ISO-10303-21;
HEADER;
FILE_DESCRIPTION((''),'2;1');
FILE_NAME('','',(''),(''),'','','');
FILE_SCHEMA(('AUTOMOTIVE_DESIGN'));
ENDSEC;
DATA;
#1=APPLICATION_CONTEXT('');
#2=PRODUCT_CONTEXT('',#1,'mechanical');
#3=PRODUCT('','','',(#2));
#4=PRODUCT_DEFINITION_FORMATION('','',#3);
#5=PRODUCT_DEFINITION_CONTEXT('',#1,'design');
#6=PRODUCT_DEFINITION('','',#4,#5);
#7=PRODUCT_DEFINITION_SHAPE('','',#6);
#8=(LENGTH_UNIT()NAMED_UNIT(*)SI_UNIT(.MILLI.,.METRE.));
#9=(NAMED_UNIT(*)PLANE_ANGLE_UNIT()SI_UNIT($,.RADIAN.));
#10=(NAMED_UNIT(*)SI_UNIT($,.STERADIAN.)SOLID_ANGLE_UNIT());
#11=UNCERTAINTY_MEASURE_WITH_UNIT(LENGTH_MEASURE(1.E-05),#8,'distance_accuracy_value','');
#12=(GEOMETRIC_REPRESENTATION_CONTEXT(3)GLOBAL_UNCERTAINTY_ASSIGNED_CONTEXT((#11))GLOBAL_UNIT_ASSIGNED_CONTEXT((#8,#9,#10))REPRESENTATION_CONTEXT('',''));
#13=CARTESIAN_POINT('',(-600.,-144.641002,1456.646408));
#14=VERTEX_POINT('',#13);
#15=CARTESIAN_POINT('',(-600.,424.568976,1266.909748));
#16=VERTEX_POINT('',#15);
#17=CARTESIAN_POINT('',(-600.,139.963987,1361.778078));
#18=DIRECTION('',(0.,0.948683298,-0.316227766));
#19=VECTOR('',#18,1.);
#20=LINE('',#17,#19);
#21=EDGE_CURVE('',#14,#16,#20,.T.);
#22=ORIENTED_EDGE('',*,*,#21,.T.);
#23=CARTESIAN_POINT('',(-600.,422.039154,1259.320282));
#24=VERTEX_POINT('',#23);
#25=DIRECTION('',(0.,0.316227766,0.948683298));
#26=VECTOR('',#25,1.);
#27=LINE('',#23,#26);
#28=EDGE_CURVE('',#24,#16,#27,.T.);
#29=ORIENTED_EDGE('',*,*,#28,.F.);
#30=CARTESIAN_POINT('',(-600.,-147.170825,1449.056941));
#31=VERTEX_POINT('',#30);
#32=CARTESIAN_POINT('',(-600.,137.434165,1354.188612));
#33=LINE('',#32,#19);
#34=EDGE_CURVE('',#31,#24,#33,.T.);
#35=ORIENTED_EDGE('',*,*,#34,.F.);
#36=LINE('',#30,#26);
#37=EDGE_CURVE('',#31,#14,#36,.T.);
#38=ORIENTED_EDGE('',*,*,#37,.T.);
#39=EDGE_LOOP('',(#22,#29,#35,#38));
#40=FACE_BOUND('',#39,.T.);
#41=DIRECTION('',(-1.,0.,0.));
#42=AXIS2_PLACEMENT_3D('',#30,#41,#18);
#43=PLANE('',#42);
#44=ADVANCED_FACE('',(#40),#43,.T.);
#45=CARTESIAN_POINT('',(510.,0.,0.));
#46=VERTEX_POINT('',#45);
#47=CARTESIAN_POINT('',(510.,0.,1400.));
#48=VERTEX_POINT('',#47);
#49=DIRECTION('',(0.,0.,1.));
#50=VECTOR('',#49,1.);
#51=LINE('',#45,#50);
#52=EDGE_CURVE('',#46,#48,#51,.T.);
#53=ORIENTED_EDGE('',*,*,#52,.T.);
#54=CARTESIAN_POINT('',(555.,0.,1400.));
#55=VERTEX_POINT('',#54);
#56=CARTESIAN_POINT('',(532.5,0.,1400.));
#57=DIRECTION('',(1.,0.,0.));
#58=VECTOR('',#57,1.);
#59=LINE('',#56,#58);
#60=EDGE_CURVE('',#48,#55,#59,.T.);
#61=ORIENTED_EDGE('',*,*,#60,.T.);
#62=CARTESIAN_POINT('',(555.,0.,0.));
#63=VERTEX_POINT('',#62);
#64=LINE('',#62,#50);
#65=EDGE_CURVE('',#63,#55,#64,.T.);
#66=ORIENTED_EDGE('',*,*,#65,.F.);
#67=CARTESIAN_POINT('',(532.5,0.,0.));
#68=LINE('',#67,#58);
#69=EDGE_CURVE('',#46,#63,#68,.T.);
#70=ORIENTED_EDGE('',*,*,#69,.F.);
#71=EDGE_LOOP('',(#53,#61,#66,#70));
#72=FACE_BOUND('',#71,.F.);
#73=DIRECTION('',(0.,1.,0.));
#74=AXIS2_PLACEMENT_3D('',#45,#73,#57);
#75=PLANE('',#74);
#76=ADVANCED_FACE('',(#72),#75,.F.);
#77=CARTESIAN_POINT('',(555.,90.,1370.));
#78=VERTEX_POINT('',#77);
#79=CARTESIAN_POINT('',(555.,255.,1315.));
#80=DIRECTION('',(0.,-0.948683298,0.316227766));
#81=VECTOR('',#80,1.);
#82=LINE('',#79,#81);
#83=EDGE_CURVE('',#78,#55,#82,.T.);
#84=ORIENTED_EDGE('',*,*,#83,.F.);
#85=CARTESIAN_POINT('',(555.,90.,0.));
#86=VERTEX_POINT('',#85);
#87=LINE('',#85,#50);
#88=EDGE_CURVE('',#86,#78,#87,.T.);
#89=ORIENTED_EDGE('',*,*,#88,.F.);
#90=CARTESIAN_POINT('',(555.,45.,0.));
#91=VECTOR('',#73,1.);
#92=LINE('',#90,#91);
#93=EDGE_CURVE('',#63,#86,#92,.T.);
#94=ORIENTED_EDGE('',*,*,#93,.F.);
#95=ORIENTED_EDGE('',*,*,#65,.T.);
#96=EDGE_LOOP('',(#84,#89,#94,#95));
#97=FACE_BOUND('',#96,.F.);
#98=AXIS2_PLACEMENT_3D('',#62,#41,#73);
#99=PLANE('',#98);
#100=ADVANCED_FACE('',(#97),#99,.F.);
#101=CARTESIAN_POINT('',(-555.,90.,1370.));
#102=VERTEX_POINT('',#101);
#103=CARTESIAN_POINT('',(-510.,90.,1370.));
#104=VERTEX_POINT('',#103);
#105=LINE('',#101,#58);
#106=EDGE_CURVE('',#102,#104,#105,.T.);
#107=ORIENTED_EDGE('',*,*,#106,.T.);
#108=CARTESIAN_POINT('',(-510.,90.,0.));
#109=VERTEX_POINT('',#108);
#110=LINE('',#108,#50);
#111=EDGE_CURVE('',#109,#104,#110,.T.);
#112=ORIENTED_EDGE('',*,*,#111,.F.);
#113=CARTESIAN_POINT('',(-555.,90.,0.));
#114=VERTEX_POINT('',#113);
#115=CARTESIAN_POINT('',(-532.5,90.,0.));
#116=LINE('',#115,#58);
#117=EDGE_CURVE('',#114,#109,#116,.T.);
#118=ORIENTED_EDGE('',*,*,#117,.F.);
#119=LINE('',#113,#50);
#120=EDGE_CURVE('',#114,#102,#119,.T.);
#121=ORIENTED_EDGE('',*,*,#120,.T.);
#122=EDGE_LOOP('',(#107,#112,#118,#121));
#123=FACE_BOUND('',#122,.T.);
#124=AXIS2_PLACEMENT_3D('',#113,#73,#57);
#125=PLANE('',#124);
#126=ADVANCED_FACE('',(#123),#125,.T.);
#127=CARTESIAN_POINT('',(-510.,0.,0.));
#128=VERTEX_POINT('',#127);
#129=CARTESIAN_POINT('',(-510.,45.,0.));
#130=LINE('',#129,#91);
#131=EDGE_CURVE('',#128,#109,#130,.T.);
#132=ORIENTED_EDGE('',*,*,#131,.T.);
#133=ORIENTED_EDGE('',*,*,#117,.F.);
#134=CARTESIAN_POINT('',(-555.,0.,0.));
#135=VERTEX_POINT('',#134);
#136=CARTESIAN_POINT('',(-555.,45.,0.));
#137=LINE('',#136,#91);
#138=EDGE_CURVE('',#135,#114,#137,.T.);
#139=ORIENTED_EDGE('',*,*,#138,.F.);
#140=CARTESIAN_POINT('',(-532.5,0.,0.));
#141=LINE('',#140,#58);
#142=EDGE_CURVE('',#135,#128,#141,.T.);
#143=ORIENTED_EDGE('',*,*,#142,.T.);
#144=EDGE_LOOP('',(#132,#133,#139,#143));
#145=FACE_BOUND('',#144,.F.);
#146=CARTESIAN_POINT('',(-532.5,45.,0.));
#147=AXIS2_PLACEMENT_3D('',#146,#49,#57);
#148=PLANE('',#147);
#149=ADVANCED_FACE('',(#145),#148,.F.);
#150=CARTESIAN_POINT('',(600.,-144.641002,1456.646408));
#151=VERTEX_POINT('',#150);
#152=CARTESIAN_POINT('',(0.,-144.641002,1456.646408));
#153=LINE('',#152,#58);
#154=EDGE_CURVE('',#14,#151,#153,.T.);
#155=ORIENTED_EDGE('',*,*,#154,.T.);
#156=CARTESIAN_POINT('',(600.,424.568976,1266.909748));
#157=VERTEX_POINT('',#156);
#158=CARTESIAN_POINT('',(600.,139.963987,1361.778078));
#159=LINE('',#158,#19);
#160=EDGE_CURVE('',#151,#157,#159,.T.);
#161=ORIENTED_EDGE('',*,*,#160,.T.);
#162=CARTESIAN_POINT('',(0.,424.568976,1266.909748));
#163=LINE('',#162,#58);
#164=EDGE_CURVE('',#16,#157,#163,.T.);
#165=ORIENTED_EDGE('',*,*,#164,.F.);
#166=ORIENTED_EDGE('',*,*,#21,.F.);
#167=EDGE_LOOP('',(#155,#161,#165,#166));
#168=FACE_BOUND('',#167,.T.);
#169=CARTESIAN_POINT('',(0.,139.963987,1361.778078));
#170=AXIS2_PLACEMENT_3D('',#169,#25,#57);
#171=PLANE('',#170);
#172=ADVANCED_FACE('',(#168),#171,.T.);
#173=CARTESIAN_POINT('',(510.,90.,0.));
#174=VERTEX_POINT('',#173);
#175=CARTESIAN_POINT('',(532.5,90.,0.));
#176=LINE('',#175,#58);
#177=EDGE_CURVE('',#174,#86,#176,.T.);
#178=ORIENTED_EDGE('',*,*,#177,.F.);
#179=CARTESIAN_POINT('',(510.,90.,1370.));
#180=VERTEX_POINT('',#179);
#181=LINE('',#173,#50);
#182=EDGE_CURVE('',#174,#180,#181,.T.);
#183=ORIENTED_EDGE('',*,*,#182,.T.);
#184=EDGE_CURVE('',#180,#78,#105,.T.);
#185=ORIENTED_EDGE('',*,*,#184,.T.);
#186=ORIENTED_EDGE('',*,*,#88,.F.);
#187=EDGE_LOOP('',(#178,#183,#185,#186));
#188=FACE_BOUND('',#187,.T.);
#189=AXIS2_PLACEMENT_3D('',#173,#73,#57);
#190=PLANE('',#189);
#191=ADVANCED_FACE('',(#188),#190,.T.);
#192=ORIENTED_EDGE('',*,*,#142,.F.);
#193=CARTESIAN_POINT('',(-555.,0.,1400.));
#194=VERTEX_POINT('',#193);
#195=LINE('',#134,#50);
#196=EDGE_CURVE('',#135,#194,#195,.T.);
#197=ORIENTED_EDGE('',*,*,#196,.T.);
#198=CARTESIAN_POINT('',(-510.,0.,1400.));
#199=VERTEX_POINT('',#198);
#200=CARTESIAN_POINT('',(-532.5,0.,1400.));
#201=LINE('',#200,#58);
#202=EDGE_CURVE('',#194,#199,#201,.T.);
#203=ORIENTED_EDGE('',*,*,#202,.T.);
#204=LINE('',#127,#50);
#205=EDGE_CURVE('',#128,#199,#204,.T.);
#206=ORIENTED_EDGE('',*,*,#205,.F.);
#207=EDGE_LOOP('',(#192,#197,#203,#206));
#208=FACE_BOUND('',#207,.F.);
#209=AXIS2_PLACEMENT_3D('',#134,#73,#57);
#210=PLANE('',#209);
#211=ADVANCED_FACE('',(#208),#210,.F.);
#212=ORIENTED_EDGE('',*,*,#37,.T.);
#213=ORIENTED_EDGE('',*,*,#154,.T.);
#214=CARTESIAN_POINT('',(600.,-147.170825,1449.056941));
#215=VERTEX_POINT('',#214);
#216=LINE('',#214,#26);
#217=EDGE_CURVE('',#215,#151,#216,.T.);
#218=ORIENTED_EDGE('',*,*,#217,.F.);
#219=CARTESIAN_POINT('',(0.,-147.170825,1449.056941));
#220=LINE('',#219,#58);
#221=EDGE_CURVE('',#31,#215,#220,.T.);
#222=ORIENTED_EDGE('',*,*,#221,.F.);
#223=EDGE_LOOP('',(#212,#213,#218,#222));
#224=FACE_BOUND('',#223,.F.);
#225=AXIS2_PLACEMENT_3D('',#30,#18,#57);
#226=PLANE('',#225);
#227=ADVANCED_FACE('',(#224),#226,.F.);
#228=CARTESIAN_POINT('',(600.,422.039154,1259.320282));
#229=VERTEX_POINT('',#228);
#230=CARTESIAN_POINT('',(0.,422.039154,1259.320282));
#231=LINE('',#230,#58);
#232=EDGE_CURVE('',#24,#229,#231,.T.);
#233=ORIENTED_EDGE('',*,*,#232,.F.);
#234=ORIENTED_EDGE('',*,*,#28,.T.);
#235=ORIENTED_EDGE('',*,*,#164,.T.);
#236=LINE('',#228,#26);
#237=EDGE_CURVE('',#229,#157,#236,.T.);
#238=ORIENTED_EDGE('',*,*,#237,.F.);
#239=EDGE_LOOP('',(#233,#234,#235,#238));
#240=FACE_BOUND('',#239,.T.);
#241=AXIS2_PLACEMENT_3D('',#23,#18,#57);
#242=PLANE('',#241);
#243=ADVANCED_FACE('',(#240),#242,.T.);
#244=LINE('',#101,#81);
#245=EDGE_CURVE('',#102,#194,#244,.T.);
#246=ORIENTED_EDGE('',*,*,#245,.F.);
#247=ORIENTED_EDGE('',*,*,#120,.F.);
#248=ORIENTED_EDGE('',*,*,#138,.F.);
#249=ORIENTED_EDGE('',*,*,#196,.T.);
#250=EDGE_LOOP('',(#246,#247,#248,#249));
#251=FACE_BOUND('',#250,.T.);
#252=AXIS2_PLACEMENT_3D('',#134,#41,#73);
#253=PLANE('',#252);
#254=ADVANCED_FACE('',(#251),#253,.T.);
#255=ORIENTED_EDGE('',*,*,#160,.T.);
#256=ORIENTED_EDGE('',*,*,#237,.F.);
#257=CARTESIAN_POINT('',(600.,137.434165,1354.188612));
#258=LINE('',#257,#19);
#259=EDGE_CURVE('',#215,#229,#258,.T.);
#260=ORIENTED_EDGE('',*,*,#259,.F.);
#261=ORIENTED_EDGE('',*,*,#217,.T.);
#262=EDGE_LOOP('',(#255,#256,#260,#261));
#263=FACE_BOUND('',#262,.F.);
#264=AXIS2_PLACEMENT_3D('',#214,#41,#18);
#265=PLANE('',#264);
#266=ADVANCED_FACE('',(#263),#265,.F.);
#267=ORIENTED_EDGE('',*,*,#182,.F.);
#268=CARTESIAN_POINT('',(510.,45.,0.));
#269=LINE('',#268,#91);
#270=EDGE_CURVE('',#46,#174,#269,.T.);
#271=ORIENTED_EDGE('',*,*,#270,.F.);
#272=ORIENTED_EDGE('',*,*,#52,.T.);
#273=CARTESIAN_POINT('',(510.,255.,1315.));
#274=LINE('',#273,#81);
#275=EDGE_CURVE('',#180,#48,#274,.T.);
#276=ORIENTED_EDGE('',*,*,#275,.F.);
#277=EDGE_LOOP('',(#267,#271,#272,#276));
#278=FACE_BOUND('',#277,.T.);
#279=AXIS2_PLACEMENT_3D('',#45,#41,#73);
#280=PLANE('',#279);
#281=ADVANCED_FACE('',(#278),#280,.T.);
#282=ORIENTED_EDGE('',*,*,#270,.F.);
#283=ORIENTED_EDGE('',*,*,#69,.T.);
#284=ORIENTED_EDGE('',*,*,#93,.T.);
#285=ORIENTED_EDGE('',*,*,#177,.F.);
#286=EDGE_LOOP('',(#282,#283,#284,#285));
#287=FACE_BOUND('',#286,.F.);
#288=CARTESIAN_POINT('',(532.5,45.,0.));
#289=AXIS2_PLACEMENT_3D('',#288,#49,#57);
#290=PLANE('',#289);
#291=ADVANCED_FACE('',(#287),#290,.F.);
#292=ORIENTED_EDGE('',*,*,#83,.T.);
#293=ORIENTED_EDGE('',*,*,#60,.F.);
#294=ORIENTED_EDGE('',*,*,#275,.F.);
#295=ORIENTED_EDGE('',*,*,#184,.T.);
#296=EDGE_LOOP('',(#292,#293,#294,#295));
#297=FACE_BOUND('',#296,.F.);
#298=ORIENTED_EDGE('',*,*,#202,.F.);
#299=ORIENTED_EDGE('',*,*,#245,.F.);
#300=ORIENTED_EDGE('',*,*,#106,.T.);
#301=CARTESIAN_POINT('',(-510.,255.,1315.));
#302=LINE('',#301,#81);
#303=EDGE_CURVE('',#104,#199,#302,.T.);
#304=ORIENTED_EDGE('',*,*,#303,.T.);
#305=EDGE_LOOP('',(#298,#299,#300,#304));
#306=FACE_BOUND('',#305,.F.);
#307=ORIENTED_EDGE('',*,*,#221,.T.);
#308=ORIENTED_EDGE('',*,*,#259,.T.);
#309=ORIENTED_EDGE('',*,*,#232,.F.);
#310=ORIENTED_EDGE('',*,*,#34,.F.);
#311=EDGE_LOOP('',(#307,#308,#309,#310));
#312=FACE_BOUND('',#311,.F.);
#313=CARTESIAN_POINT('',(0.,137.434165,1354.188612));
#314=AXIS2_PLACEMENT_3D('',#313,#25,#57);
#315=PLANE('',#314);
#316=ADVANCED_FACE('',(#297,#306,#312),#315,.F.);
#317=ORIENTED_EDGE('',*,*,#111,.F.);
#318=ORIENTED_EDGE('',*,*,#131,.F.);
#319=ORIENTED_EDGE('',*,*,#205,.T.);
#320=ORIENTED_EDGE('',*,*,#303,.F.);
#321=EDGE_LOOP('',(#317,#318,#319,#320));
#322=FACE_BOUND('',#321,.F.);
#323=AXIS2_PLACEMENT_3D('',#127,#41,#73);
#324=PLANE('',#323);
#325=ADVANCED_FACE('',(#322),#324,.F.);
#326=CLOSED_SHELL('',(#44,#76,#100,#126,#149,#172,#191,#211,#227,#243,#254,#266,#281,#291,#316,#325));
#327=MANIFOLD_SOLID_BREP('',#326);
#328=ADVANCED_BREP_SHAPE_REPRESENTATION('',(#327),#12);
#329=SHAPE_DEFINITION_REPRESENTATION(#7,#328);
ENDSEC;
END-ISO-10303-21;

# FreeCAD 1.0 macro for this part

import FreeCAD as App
import Part
import Sketcher
from FreeCAD import Vector

doc = App.newDocument("Part")
body = doc.addObject("PartDesign::Body", "Body")

# Sketch on XY plane
sketch1 = body.newObject("Sketcher::SketchObject", "Sketch")
sketch1.AttachmentSupport = (doc.getObject("XY_Plane"), [""])
sketch1.MapMode = "FlatFace"
sketch1.addGeometry(Part.LineSegment(Vector(-555, 90, 0), Vector(-555, 0, 0)), False)
sketch1.addGeometry(Part.LineSegment(Vector(-555, 0, 0), Vector(-510, 0, 0)), False)
sketch1.addGeometry(Part.LineSegment(Vector(-510, 0, 0), Vector(-510, 90, 0)), False)
sketch1.addGeometry(Part.LineSegment(Vector(-510, 90, 0), Vector(-555, 90, 0)), False)
sketch1.addConstraint(Sketcher.Constraint("Coincident", 0, 2, 1, 1))
sketch1.addConstraint(Sketcher.Constraint("Coincident", 1, 2, 2, 1))
sketch1.addConstraint(Sketcher.Constraint("Coincident", 2, 2, 3, 1))
sketch1.addConstraint(Sketcher.Constraint("Coincident", 3, 2, 0, 1))
sketch1.addConstraint(Sketcher.Constraint("Vertical", 0))
sketch1.addConstraint(Sketcher.Constraint("Horizontal", 1))
sketch1.addConstraint(Sketcher.Constraint("Vertical", 2))
sketch1.addConstraint(Sketcher.Constraint("Horizontal", 3))
sketch1.addConstraint(Sketcher.Constraint("PointOnObject", 0, 2, -1))
sketch1.addConstraint(Sketcher.Constraint("DistanceX", 1, 1, 1, 2, 45.0))
sketch1.addConstraint(Sketcher.Constraint("DistanceY", 0, 2, 0, 1, 90.0))
sketch1.addConstraint(Sketcher.Constraint("DistanceX", 0, 2, -1, 1, 555.0))
pad1 = body.newObject("PartDesign::Pad", "Pad")
pad1.Profile = sketch1
pad1.Length = 1400
body2 = doc.addObject("PartDesign::Body", "Body001")

# Sketch on XY plane
sketch2 = body2.newObject("Sketcher::SketchObject", "Sketch001")
sketch2.AttachmentSupport = (doc.getObject("XY_Plane001"), [""])
sketch2.MapMode = "FlatFace"
sketch2.addGeometry(Part.LineSegment(Vector(510, 90, 0), Vector(510, 0, 0)), False)
sketch2.addGeometry(Part.LineSegment(Vector(510, 0, 0), Vector(555, 0, 0)), False)
sketch2.addGeometry(Part.LineSegment(Vector(555, 0, 0), Vector(555, 90, 0)), False)
sketch2.addGeometry(Part.LineSegment(Vector(555, 90, 0), Vector(510, 90, 0)), False)
sketch2.addConstraint(Sketcher.Constraint("Coincident", 0, 2, 1, 1))
sketch2.addConstraint(Sketcher.Constraint("Coincident", 1, 2, 2, 1))
sketch2.addConstraint(Sketcher.Constraint("Coincident", 2, 2, 3, 1))
sketch2.addConstraint(Sketcher.Constraint("Coincident", 3, 2, 0, 1))
sketch2.addConstraint(Sketcher.Constraint("Vertical", 0))
sketch2.addConstraint(Sketcher.Constraint("Horizontal", 1))
sketch2.addConstraint(Sketcher.Constraint("Vertical", 2))
sketch2.addConstraint(Sketcher.Constraint("Horizontal", 3))
sketch2.addConstraint(Sketcher.Constraint("PointOnObject", 0, 2, -1))
sketch2.addConstraint(Sketcher.Constraint("DistanceX", 1, 1, 1, 2, 45.0))
sketch2.addConstraint(Sketcher.Constraint("DistanceY", 0, 2, 0, 1, 90.0))
sketch2.addConstraint(Sketcher.Constraint("DistanceX", -1, 1, 0, 2, 510.0))
pad2 = body2.newObject("PartDesign::Pad", "Pad001")
pad2.Profile = sketch2
pad2.Length = 1400
body3 = doc.addObject("PartDesign::Body", "Body002")

# Sketch on YZ plane
sketch3 = body3.newObject("Sketcher::SketchObject", "Sketch002")
sketch3.AttachmentSupport = (doc.getObject("YZ_Plane002"), [""])
sketch3.MapMode = "FlatFace"
sketch3.AttachmentOffset = App.Placement(Vector(0, 0, -555), App.Rotation())
sketch3.addGeometry(Part.LineSegment(Vector(0, 1400, 0), Vector(90, 1400, 0)), False)
sketch3.addGeometry(Part.LineSegment(Vector(90, 1400, 0), Vector(90, 1370, 0)), False)
sketch3.addGeometry(Part.LineSegment(Vector(90, 1370, 0), Vector(0, 1400, 0)), False)
sketch3.addConstraint(Sketcher.Constraint("Coincident", 0, 2, 1, 1))
sketch3.addConstraint(Sketcher.Constraint("Coincident", 1, 2, 2, 1))
sketch3.addConstraint(Sketcher.Constraint("Coincident", 2, 2, 0, 1))
sketch3.addConstraint(Sketcher.Constraint("Horizontal", 0))
sketch3.addConstraint(Sketcher.Constraint("Vertical", 1))
sketch3.addConstraint(Sketcher.Constraint("PointOnObject", 2, 2, -2))
sketch3.addConstraint(Sketcher.Constraint("DistanceX", 0, 1, 0, 2, 90.0))
sketch3.addConstraint(Sketcher.Constraint("DistanceY", 1, 2, 1, 1, 30.0))
sketch3.addConstraint(Sketcher.Constraint("DistanceY", -1, 1, 0, 2, 1400.0))
pad3 = body3.newObject("PartDesign::Pad", "Pad002")
pad3.Profile = sketch3
pad3.Length = 1110.001
doc.recompute()

body4 = doc.addObject("PartDesign::Body", "Body003")
body4.BaseFeature = body3
boolean = body.newObject("PartDesign::Boolean", "Boolean")
boolean.Type = "Cut"
boolean.addObjects([body4])
doc.recompute()

# Sketch on YZ plane
sketch4 = body.newObject("Sketcher::SketchObject", "Sketch003")
sketch4.AttachmentSupport = (doc.getObject("YZ_Plane"), [""])
sketch4.MapMode = "FlatFace"
sketch4.AttachmentOffset = App.Placement(Vector(0, 0, 510), App.Rotation())
sketch4.addGeometry(Part.LineSegment(Vector(0, 1400, 0), Vector(90, 1400, 0)), False)
sketch4.addGeometry(Part.LineSegment(Vector(90, 1400, 0), Vector(90, 1370, 0)), False)
sketch4.addGeometry(Part.LineSegment(Vector(90, 1370, 0), Vector(0, 1400, 0)), False)
sketch4.addConstraint(Sketcher.Constraint("Coincident", 0, 2, 1, 1))
sketch4.addConstraint(Sketcher.Constraint("Coincident", 1, 2, 2, 1))
sketch4.addConstraint(Sketcher.Constraint("Coincident", 2, 2, 0, 1))
sketch4.addConstraint(Sketcher.Constraint("Horizontal", 0))
sketch4.addConstraint(Sketcher.Constraint("Vertical", 1))
sketch4.addConstraint(Sketcher.Constraint("PointOnObject", 2, 2, -2))
sketch4.addConstraint(Sketcher.Constraint("DistanceX", 0, 1, 0, 2, 90.0))
sketch4.addConstraint(Sketcher.Constraint("DistanceY", 1, 2, 1, 1, 30.0))
sketch4.addConstraint(Sketcher.Constraint("DistanceY", -1, 1, 0, 2, 1400.0))
pocket1 = body.newObject("PartDesign::Pocket", "Pocket")
pocket1.Profile = sketch4
pocket1.Type = "ThroughAll"
pocket1.Reversed = True
doc.recompute()

boolean2 = body2.newObject("PartDesign::Boolean", "Boolean001")
boolean2.Type = "Cut"
boolean2.addObjects([body3])
body.AllowCompound = True
doc.recompute()

boolean3 = body.newObject("PartDesign::Boolean", "Boolean002")
boolean3.Type = "Fuse"
boolean3.addObjects([body2])

# Sketch on an angled plane
sketch5 = body.newObject("Sketcher::SketchObject", "Sketch004")
sketch5.Placement = App.Placement(Vector(0, 420, 1260), App.Rotation(Vector(1, 0, 0), Vector(0, 0.948683298, -0.316227766), Vector(0, 0.316227766, 0.948683298), "ZXY"))
sketch5.addGeometry(Part.LineSegment(Vector(-600, 2, 0), Vector(-600, -598, 0)), False)
sketch5.addGeometry(Part.LineSegment(Vector(-600, -598, 0), Vector(600, -598, 0)), False)
sketch5.addGeometry(Part.LineSegment(Vector(600, -598, 0), Vector(600, 2, 0)), False)
sketch5.addGeometry(Part.LineSegment(Vector(600, 2, 0), Vector(-600, 2, 0)), False)
sketch5.addConstraint(Sketcher.Constraint("Coincident", 0, 2, 1, 1))
sketch5.addConstraint(Sketcher.Constraint("Coincident", 1, 2, 2, 1))
sketch5.addConstraint(Sketcher.Constraint("Coincident", 2, 2, 3, 1))
sketch5.addConstraint(Sketcher.Constraint("Coincident", 3, 2, 0, 1))
sketch5.addConstraint(Sketcher.Constraint("Vertical", 0))
sketch5.addConstraint(Sketcher.Constraint("Horizontal", 1))
sketch5.addConstraint(Sketcher.Constraint("Vertical", 2))
sketch5.addConstraint(Sketcher.Constraint("Horizontal", 3))
sketch5.addConstraint(Sketcher.Constraint("DistanceX", 1, 1, 1, 2, 1200.0))
sketch5.addConstraint(Sketcher.Constraint("DistanceY", 0, 2, 0, 1, 600.0))
sketch5.addConstraint(Sketcher.Constraint("DistanceX", 0, 2, -1, 1, 600.0))
sketch5.addConstraint(Sketcher.Constraint("DistanceY", 0, 2, -1, 1, 597.850543))
pad4 = body.newObject("PartDesign::Pad", "Pad003")
pad4.Profile = sketch5
pad4.Length = 8

doc.recompute()
